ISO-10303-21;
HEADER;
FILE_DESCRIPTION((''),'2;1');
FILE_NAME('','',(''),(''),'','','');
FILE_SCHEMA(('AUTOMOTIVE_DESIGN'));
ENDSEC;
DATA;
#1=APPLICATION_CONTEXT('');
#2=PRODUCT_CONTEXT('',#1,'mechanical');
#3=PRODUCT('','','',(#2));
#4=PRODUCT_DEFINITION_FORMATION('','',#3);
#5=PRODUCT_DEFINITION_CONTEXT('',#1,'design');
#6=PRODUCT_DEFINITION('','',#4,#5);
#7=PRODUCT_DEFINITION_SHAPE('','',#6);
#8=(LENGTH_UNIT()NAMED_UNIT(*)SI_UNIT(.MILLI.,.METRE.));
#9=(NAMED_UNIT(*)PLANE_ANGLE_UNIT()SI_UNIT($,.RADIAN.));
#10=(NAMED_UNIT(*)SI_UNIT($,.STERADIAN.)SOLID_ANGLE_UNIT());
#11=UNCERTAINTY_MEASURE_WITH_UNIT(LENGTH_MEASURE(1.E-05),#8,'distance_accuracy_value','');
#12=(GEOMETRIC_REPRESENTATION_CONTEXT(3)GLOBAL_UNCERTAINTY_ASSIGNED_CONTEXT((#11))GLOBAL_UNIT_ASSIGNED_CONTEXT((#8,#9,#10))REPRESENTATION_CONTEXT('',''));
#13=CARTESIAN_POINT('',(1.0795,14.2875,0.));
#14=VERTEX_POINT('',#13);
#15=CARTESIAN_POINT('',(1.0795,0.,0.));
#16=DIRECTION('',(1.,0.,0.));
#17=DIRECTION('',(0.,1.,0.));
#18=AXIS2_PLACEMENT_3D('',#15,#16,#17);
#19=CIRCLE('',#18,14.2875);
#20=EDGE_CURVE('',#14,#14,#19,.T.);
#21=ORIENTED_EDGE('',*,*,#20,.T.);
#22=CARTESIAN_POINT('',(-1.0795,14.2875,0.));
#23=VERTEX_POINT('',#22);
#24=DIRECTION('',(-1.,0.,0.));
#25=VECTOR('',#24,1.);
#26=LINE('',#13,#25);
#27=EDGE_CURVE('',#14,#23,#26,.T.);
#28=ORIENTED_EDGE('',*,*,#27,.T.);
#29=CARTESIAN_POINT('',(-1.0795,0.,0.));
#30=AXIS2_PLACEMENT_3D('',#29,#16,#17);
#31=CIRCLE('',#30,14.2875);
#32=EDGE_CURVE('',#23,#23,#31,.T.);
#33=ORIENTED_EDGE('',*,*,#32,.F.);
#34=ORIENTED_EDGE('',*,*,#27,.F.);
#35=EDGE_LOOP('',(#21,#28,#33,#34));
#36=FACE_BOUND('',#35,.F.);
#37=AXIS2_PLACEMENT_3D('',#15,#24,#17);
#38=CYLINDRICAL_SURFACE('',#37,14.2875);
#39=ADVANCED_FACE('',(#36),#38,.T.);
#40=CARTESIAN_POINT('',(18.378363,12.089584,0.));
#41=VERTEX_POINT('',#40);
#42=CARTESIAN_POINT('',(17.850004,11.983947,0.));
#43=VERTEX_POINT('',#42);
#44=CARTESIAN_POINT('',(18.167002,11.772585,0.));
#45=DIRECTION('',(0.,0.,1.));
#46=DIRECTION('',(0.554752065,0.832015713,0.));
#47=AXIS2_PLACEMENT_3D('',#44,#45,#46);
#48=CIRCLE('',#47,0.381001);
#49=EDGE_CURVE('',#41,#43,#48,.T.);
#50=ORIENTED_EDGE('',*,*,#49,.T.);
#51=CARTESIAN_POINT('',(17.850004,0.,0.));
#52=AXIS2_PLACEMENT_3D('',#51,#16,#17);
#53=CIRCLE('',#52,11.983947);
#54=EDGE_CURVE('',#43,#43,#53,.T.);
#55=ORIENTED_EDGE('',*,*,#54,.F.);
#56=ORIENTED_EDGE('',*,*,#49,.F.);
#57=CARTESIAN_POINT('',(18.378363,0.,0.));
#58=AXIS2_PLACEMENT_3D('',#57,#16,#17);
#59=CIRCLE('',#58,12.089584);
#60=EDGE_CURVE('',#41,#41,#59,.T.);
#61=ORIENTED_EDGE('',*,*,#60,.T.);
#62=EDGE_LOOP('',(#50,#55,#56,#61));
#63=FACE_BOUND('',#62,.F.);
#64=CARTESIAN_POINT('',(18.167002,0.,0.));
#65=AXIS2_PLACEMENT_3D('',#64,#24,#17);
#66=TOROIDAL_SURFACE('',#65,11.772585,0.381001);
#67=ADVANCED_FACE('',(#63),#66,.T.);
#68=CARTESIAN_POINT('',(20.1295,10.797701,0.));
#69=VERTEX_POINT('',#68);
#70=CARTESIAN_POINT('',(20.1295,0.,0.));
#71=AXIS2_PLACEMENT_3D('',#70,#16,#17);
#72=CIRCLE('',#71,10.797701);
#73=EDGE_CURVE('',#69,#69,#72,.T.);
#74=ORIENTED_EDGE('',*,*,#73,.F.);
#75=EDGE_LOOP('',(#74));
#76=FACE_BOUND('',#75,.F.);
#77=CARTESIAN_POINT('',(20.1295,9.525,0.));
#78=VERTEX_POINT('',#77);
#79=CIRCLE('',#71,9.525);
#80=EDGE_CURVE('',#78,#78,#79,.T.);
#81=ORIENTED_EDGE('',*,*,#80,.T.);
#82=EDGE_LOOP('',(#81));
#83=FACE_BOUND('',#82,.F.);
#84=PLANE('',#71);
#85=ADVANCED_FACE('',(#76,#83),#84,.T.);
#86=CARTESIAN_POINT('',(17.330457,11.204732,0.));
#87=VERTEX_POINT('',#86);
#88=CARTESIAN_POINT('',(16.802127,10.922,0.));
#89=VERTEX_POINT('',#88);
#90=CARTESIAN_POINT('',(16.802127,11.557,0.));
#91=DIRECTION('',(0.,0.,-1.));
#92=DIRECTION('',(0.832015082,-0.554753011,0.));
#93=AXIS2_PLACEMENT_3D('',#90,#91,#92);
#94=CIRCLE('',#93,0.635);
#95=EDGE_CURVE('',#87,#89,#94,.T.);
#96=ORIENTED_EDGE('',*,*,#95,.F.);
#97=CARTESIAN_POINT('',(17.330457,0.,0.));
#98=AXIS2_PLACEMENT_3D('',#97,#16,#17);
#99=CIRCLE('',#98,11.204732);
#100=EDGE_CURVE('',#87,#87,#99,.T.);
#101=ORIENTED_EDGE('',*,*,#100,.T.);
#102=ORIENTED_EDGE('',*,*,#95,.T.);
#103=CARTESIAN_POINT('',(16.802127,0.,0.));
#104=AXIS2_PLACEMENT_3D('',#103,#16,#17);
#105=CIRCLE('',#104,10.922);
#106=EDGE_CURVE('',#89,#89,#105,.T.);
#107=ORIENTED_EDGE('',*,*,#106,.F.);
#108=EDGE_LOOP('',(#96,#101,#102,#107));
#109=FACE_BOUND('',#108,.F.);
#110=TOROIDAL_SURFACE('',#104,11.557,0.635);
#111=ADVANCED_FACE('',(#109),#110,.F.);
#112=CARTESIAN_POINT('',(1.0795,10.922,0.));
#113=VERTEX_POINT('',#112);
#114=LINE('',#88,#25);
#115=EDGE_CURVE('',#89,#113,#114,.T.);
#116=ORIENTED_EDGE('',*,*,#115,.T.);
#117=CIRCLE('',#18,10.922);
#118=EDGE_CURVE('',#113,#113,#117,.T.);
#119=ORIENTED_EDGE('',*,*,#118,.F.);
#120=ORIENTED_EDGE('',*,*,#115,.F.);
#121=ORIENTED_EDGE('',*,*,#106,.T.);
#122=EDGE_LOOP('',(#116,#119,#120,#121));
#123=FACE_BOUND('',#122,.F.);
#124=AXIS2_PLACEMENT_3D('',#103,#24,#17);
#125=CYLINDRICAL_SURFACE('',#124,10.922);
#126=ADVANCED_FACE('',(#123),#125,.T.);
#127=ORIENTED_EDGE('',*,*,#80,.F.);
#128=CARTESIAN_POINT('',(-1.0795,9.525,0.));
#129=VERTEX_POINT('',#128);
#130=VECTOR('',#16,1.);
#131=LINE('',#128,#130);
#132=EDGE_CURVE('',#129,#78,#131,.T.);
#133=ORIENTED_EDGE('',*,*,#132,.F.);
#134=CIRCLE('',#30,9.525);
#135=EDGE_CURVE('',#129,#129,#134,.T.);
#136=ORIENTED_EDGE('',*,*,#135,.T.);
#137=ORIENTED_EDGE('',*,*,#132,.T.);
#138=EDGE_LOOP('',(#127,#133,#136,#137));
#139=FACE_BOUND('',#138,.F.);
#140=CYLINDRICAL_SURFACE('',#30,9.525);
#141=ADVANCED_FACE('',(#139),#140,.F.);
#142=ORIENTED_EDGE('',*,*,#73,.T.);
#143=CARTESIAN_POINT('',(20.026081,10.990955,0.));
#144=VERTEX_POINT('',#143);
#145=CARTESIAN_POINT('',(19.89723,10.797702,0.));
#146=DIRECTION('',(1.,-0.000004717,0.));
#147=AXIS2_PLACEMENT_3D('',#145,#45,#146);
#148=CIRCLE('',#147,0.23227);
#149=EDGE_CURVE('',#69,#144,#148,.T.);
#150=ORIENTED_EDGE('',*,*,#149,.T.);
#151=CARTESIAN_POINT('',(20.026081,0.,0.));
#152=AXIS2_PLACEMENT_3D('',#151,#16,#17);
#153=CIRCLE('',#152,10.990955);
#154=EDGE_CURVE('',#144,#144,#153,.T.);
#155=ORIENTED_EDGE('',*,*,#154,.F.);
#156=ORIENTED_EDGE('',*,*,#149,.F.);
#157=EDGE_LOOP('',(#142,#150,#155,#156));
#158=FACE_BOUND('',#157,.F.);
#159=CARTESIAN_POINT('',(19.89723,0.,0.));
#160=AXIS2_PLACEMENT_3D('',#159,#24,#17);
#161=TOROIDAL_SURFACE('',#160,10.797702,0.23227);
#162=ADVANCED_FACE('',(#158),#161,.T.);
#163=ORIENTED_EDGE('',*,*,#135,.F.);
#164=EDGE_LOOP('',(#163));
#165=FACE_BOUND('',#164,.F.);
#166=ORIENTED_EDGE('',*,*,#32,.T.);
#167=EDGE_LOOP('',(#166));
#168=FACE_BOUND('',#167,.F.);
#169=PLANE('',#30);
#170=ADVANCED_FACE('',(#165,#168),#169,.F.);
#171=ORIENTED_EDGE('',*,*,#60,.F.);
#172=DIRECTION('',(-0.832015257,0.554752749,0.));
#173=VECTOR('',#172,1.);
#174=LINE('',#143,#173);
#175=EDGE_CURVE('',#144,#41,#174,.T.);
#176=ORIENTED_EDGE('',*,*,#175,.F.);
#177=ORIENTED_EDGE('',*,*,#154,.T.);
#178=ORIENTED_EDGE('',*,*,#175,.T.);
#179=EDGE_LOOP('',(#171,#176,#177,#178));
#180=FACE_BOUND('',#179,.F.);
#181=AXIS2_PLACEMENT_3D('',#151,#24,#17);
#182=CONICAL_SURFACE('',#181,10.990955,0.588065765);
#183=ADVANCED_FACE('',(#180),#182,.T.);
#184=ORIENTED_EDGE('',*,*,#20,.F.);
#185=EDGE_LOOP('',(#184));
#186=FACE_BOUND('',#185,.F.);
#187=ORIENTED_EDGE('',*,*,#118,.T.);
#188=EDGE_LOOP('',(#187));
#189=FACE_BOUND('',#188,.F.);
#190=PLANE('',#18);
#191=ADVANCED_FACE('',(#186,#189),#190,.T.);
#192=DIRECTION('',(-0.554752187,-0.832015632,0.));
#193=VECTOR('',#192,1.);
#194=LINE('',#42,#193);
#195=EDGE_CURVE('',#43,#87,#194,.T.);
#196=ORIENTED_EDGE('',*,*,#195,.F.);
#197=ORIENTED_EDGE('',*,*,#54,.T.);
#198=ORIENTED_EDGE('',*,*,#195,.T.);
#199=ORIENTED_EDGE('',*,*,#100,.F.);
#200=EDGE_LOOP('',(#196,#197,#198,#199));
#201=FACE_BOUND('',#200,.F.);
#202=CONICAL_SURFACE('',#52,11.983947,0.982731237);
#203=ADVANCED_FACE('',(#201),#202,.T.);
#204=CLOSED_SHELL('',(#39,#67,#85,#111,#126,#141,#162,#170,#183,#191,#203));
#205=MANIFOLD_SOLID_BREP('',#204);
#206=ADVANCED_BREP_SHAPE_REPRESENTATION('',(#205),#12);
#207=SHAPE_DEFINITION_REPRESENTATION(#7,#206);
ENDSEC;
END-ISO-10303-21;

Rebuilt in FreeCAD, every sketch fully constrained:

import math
import FreeCAD as App
import Part
import Sketcher

V = App.Vector
Q = App.Units.Quantity

doc = App.newDocument("Part")
body = doc.addObject("PartDesign::Body", "Body")

# Sketch on XY plane
sketch1 = body.newObject("Sketcher::SketchObject", "Sketch")
sketch1.AttachmentSupport = (doc.getObject("XY_Plane"), [""])
sketch1.MapMode = "FlatFace"
sketch1.addGeometry([
    Part.LineSegment(V(1.0795, 14.2875, 0), V(-1.0795, 14.2875, 0)),  # 0
    Part.LineSegment(V(-1.0795, 14.2875, 0), V(-1.0795, 9.525, 0)),  # 1
    Part.LineSegment(V(-1.0795, 9.525, 0), V(20.1295, 9.525, 0)),  # 2
    Part.LineSegment(V(20.1295, 9.525, 0), V(20.1295, 10.797701, 0)),  # 3
    Part.ArcOfCircle(Part.Circle(V(19.89723, 10.797702, 0), V(0, 0, 1), 0.23227), math.radians(-0.00027), math.radians(56.306791)),  # 4
    Part.LineSegment(V(20.026081, 10.990955, 0), V(18.378363, 12.089584, 0)),  # 5
    Part.ArcOfCircle(Part.Circle(V(18.167002, 11.772585, 0), V(0, 0, 1), 0.381001), math.radians(56.306361), math.radians(146.306247)),  # 6
    Part.LineSegment(V(17.850004, 11.983947, 0), V(17.330457, 11.204732, 0)),  # 7
    Part.ArcOfCircle(Part.Circle(V(16.802127, 11.557, 0), V(0, 0, 1), 0.635), math.radians(-90.000011), math.radians(-33.693704)),  # 8
    Part.LineSegment(V(16.802127, 10.922, 0), V(1.0795, 10.922, 0)),  # 9
    Part.LineSegment(V(1.0795, 10.922, 0), V(1.0795, 14.2875, 0)),  # 10
], False)
sketch1.addConstraint([
    Sketcher.Constraint("Coincident", 0, 2, 1, 1),
    Sketcher.Constraint("Coincident", 1, 2, 2, 1),
    Sketcher.Constraint("Coincident", 2, 2, 3, 1),
    Sketcher.Constraint("Coincident", 3, 2, 4, 1),
    Sketcher.Constraint("Coincident", 4, 2, 5, 1),
    Sketcher.Constraint("Coincident", 5, 2, 6, 1),
    Sketcher.Constraint("Coincident", 6, 2, 7, 1),
    Sketcher.Constraint("Coincident", 7, 2, 8, 2),
    Sketcher.Constraint("Coincident", 8, 1, 9, 1),
    Sketcher.Constraint("Coincident", 9, 2, 10, 1),
    Sketcher.Constraint("Coincident", 10, 2, 0, 1),
    Sketcher.Constraint("Horizontal", 0),
    Sketcher.Constraint("Vertical", 1),
    Sketcher.Constraint("Horizontal", 2),
    Sketcher.Constraint("Vertical", 3),
    Sketcher.Constraint("Horizontal", 9),
    Sketcher.Constraint("Vertical", 10),
    Sketcher.Constraint("Radius", 6, Q("0.015 in")),
    Sketcher.Constraint("Radius", 8, Q("0.025 in")),
    Sketcher.Constraint("DistanceX", 0, 2, 0, 1, Q("0.085 in")),
    Sketcher.Constraint("DistanceX", 2, 1, 2, 2, Q("0.835 in")),
    Sketcher.Constraint("DistanceY", 1, 2, 1, 1, Q("0.1875 in")),
    Sketcher.Constraint("DistanceY", -1, 1, 8, 1, Q("0.43 in")),
    Sketcher.Constraint("DistanceY", 1, 2, 8, 3, Q("0.08 in")),
    Sketcher.Constraint("Radius", 4, 0.23227),
    Sketcher.Constraint("DistanceY", 3, 1, 3, 2, 1.272701),
    Sketcher.Constraint("DistanceX", 0, 2, -1, 1, Q("0.0425 in")),
    Sketcher.Constraint("DistanceY", 4, 3, 8, 3, 0.759298),
    Sketcher.Constraint("DistanceY", 6, 3, 5, 2, 0.316999),
    Sketcher.Constraint("DistanceX", 6, 2, 6, 3, 0.316998),
    Sketcher.Constraint("Distance", 7, 0.936539),
    Sketcher.Constraint("DistanceX", 9, 2, 9, 1, 15.722627),
    Sketcher.Constraint("DistanceX", -1, 1, 4, 2, 20.026081),
    Sketcher.Constraint("DistanceX", 6, 3, 4, 3, 1.730228),
    Sketcher.Constraint("DistanceY", 4, 2, 6, 3, 0.78163),
    Sketcher.Constraint("DistanceX", 8, 3, 7, 2, 0.52833),
])
revolution = body.newObject("PartDesign::Revolution", "Revolution")
revolution.Profile = sketch1
revolution.ReferenceAxis = (sketch1, ["H_Axis"])
revolution.Angle = 360

doc.recompute()
